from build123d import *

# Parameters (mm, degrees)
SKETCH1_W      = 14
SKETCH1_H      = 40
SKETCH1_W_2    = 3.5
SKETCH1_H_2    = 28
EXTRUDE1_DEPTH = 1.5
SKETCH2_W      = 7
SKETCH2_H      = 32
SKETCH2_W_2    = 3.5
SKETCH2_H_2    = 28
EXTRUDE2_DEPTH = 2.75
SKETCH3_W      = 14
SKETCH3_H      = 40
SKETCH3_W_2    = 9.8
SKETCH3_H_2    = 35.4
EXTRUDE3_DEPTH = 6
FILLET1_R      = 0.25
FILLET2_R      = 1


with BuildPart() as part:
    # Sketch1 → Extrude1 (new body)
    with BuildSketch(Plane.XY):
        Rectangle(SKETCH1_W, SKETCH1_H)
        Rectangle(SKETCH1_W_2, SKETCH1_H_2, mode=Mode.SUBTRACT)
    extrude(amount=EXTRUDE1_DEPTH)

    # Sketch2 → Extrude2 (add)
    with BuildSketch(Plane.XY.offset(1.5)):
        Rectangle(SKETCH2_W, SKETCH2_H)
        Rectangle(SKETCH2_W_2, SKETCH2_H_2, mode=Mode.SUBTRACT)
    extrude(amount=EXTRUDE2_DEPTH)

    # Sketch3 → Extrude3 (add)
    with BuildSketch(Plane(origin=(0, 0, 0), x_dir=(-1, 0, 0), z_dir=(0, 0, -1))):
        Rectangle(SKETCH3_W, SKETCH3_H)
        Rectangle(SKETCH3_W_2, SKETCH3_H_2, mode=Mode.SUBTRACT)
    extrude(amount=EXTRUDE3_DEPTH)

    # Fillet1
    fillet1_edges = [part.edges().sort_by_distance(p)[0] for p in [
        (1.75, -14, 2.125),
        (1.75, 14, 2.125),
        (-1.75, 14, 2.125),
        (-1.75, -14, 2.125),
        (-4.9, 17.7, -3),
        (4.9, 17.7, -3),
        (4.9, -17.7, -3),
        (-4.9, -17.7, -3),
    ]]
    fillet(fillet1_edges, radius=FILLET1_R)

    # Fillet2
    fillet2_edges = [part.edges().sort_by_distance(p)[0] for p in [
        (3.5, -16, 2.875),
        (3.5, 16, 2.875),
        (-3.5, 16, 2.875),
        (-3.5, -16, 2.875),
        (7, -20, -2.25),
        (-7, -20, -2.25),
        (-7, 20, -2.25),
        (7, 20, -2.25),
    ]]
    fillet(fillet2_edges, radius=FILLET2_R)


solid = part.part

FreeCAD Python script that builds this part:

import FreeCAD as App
import Part
import Sketcher
from FreeCAD import Vector


def edges_at(feature, points):
    """Names of the edges that pass closest to the given points."""
    edges = feature.Shape.Edges
    near = lambda p: min(range(len(edges)), key=lambda i: edges[i].distToShape(Part.Vertex(*p))[0])
    return sorted({f"Edge{near(p) + 1}" for p in points})


def add_polygon(sketch, points):
    """Adds a closed chain of lines whose ends are joined by coincident constraints."""
    first, n = sketch.GeometryCount, len(points)
    for a, b in zip(points, points[1:] + points[:1]):
        sketch.addGeometry(Part.LineSegment(App.Vector(*a, 0), App.Vector(*b, 0)), False)
    for i in range(n):
        sketch.addConstraint(Sketcher.Constraint("Coincident", first + i, 2, first + (i + 1) % n, 1))

doc = App.newDocument("Part")
params = doc.addObject("Spreadsheet::Sheet", "Params")
for row, (alias, value) in enumerate([
    ("sketch1_width", "14 mm"),
    ("sketch1_height", "40 mm"),
    ("sketch1_height2", "28 mm"),
    ("sketch1_width2", "3.5 mm"),
    ("pad1_length", "1.5 mm"),
    ("sketch2_width", "7 mm"),
    ("sketch2_height", "32 mm"),
    ("sketch2_height2", "28 mm"),
    ("sketch2_width2", "3.5 mm"),
    ("pad2_length", "2.75 mm"),
    ("sketch3_width", "14 mm"),
    ("sketch3_height", "40 mm"),
    ("sketch3_width2", "9.8 mm"),
    ("sketch3_height2", "35.4 mm"),
    ("pad3_length", "6 mm"),
    ("fillet_radius", "0.25 mm"),
    ("fillet2_radius", "1 mm"),
], start=1):
    params.set(f"A{row}", alias)
    params.set(f"B{row}", "=" + value)
    params.setAlias(f"B{row}", alias)

body = doc.addObject("PartDesign::Body", "Body")

# Sketch on XY plane
sketch1 = body.newObject("Sketcher::SketchObject", "Sketch")
sketch1.AttachmentSupport = (doc.getObject("XY_Plane"), [""])
sketch1.MapMode = "FlatFace"
add_polygon(sketch1, [(-7, 20), (-7, -20), (7, -20), (7, 20)])  # lines 0-3
add_polygon(sketch1, [(1.75, -14), (-1.75, -14), (-1.75, 14), (1.75, 14)])  # lines 4-7
sketch1.addConstraint([
    Sketcher.Constraint("Vertical", 0),
    Sketcher.Constraint("Horizontal", 1),
    Sketcher.Constraint("Vertical", 2),
    Sketcher.Constraint("Horizontal", 3),
    Sketcher.Constraint("Horizontal", 4),
    Sketcher.Constraint("Vertical", 5),
    Sketcher.Constraint("Horizontal", 6),
    Sketcher.Constraint("Vertical", 7),
    Sketcher.Constraint("Symmetric", 0, 2, 2, 2, -1, 1),
    Sketcher.Constraint("Symmetric", 4, 2, 6, 2, -1, 1),
    Sketcher.Constraint("DistanceX", 1, 1, 1, 2, 14.0),
    Sketcher.Constraint("DistanceY", 0, 2, 0, 1, 40.0),
    Sketcher.Constraint("DistanceY", 5, 1, 5, 2, 28.0),
    Sketcher.Constraint("DistanceX", 4, 2, 4, 1, 3.5),
])
sketch1.setExpression("Constraints[18]", "Params.sketch1_width")
sketch1.setExpression("Constraints[19]", "Params.sketch1_height")
sketch1.setExpression("Constraints[20]", "Params.sketch1_height2")
sketch1.setExpression("Constraints[21]", "Params.sketch1_width2")
pad1 = body.newObject("PartDesign::Pad", "Pad")
pad1.Profile = sketch1
pad1.setExpression("Length", "Params.pad1_length")

# Sketch on XY plane
sketch2 = body.newObject("Sketcher::SketchObject", "Sketch001")
sketch2.AttachmentSupport = (doc.getObject("XY_Plane"), [""])
sketch2.MapMode = "FlatFace"
sketch2.AttachmentOffset = App.Placement(Vector(0, 0, 1.5), App.Rotation())
add_polygon(sketch2, [(-3.5, 16), (-3.5, -16), (3.5, -16), (3.5, 16)])  # lines 0-3
add_polygon(sketch2, [(1.75, -14), (-1.75, -14), (-1.75, 14), (1.75, 14)])  # lines 4-7
sketch2.addConstraint([
    Sketcher.Constraint("Vertical", 0),
    Sketcher.Constraint("Horizontal", 1),
    Sketcher.Constraint("Vertical", 2),
    Sketcher.Constraint("Horizontal", 3),
    Sketcher.Constraint("Horizontal", 4),
    Sketcher.Constraint("Vertical", 5),
    Sketcher.Constraint("Horizontal", 6),
    Sketcher.Constraint("Vertical", 7),
    Sketcher.Constraint("Symmetric", 0, 2, 2, 2, -1, 1),
    Sketcher.Constraint("Symmetric", 4, 2, 6, 2, -1, 1),
    Sketcher.Constraint("DistanceX", 1, 1, 1, 2, 7.0),
    Sketcher.Constraint("DistanceY", 0, 2, 0, 1, 32.0),
    Sketcher.Constraint("DistanceY", 5, 1, 5, 2, 28.0),
    Sketcher.Constraint("DistanceX", 4, 2, 4, 1, 3.5),
])
sketch2.setExpression("Constraints[18]", "Params.sketch2_width")
sketch2.setExpression("Constraints[19]", "Params.sketch2_height")
sketch2.setExpression("Constraints[20]", "Params.sketch2_height2")
sketch2.setExpression("Constraints[21]", "Params.sketch2_width2")
pad2 = body.newObject("PartDesign::Pad", "Pad001")
pad2.Profile = sketch2
pad2.setExpression("Length", "Params.pad2_length")

# Sketch on XY plane
sketch3 = body.newObject("Sketcher::SketchObject", "Sketch002")
sketch3.AttachmentSupport = (doc.getObject("XY_Plane"), [""])
sketch3.MapMode = "FlatFace"
add_polygon(sketch3, [(7, 20), (7, -20), (-7, -20), (-7, 20)])  # lines 0-3
add_polygon(sketch3, [(-4.9, -17.7), (4.9, -17.7), (4.9, 17.7), (-4.9, 17.7)])  # lines 4-7
sketch3.addConstraint([
    Sketcher.Constraint("Vertical", 0),
    Sketcher.Constraint("Horizontal", 1),
    Sketcher.Constraint("Vertical", 2),
    Sketcher.Constraint("Horizontal", 3),
    Sketcher.Constraint("Horizontal", 4),
    Sketcher.Constraint("Vertical", 5),
    Sketcher.Constraint("Horizontal", 6),
    Sketcher.Constraint("Vertical", 7),
    Sketcher.Constraint("Symmetric", 0, 2, 2, 2, -1, 1),
    Sketcher.Constraint("Symmetric", 4, 2, 6, 2, -1, 1),
    Sketcher.Constraint("DistanceX", 1, 2, 1, 1, 14.0),
    Sketcher.Constraint("DistanceY", 0, 2, 0, 1, 40.0),
    Sketcher.Constraint("DistanceX", 4, 1, 4, 2, 9.8),
    Sketcher.Constraint("DistanceY", 5, 1, 5, 2, 35.4),
])
sketch3.setExpression("Constraints[18]", "Params.sketch3_width")
sketch3.setExpression("Constraints[19]", "Params.sketch3_height")
sketch3.setExpression("Constraints[20]", "Params.sketch3_width2")
sketch3.setExpression("Constraints[21]", "Params.sketch3_height2")
pad3 = body.newObject("PartDesign::Pad", "Pad002")
pad3.Profile = sketch3
pad3.setExpression("Length", "Params.pad3_length")
pad3.Reversed = True
doc.recompute()

fillet = body.newObject("PartDesign::Fillet", "Fillet")
fillet.Base = (pad3, edges_at(pad3, [
    (1.75, -14, 2.125),
    (1.75, 14, 2.125),
    (-1.75, 14, 2.125),
    (-1.75, -14, 2.125),
    (-4.9, 17.7, -3),
    (4.9, 17.7, -3),
    (4.9, -17.7, -3),
    (-4.9, -17.7, -3),
]))
fillet.setExpression("Radius", "Params.fillet_radius")
doc.recompute()

fillet2 = body.newObject("PartDesign::Fillet", "Fillet001")
fillet2.Base = (fillet, edges_at(fillet, [
    (3.5, -16, 2.875),
    (3.5, 16, 2.875),
    (-3.5, 16, 2.875),
    (-3.5, -16, 2.875),
    (7, -20, -2.25),
    (-7, -20, -2.25),
    (-7, 20, -2.25),
    (7, 20, -2.25),
]))
fillet2.setExpression("Radius", "Params.fillet2_radius")

doc.recompute()
